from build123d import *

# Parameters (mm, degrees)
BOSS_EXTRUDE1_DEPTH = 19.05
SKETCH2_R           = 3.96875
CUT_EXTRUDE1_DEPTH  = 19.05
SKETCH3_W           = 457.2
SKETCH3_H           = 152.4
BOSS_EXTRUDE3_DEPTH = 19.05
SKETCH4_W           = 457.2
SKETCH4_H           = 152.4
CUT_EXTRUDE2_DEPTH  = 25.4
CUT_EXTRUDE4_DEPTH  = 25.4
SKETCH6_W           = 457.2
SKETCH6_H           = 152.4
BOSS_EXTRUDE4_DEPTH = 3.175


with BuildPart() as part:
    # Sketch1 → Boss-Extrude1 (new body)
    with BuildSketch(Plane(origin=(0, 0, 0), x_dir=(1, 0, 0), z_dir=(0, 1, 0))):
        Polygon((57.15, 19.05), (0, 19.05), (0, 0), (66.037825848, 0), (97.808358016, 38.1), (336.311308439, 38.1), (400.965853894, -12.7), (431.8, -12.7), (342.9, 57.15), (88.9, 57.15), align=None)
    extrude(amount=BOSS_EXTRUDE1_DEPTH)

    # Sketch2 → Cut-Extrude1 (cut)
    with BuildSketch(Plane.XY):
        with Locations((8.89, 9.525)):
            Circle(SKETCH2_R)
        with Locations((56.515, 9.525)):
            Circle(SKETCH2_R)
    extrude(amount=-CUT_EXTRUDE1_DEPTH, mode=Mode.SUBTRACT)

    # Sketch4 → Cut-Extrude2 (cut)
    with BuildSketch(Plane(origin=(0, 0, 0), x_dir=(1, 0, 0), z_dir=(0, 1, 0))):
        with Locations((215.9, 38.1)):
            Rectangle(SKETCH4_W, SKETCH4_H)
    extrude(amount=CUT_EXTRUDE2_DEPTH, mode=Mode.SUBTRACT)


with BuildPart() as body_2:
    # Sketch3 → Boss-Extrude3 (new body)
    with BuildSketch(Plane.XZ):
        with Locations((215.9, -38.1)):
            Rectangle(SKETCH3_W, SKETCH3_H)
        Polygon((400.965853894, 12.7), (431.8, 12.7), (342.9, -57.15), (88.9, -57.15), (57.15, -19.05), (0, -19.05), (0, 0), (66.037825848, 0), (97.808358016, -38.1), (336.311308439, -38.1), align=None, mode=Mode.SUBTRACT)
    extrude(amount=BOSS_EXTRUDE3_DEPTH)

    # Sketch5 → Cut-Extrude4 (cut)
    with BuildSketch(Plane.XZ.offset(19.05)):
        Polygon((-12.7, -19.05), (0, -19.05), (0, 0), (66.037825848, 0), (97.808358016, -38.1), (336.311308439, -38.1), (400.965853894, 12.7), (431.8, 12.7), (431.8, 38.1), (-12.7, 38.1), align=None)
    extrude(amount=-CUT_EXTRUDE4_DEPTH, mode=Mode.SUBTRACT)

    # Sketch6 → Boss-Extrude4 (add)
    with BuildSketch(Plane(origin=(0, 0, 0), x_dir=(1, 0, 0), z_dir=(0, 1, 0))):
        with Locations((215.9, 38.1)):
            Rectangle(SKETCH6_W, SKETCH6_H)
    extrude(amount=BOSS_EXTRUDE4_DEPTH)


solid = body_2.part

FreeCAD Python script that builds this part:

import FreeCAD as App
import Part
import Sketcher

V = App.Vector
Q = App.Units.Quantity

doc = App.newDocument("Part")
body = doc.addObject("PartDesign::Body", "Body")

# Sketch on XZ plane
sketch1 = doc.addObject("Sketcher::SketchObject", "Sketch")
body.addObject(sketch1)
sketch1.AttachmentSupport = (doc.XZ_Plane, [""])
sketch1.MapMode = "FlatFace"
sketch1.addGeometry([
    Part.LineSegment(V(57, -19, 0), V(0, -19, 0)),  # 0
    Part.LineSegment(V(0, -19, 0), V(0, 0, 0)),  # 1
    Part.LineSegment(V(0, 0, 0), V(66, 0, 0)),  # 2
    Part.LineSegment(V(66, 0, 0), V(98, -38, 0)),  # 3
    Part.LineSegment(V(98, -38, 0), V(336, -38, 0)),  # 4
    Part.LineSegment(V(336, -38, 0), V(401, 13, 0)),  # 5
    Part.LineSegment(V(401, 13, 0), V(432, 13, 0)),  # 6
    Part.LineSegment(V(432, 13, 0), V(343, -57, 0)),  # 7
    Part.LineSegment(V(343, -57, 0), V(89, -57, 0)),  # 8
    Part.LineSegment(V(89, -57, 0), V(57, -19, 0)),  # 9
], False)
sketch1.addConstraint([
    Sketcher.Constraint("Coincident", 0, 2, 1, 1),
    Sketcher.Constraint("Coincident", 1, 2, 2, 1),
    Sketcher.Constraint("Coincident", 2, 2, 3, 1),
    Sketcher.Constraint("Coincident", 3, 2, 4, 1),
    Sketcher.Constraint("Coincident", 4, 2, 5, 1),
    Sketcher.Constraint("Coincident", 5, 2, 6, 1),
    Sketcher.Constraint("Coincident", 6, 2, 7, 1),
    Sketcher.Constraint("Coincident", 7, 2, 8, 1),
    Sketcher.Constraint("Coincident", 8, 2, 9, 1),
    Sketcher.Constraint("Coincident", 9, 2, 0, 1),
    Sketcher.Constraint("Horizontal", 0),
    Sketcher.Constraint("Vertical", 1),
    Sketcher.Constraint("Horizontal", 2),
    Sketcher.Constraint("Horizontal", 4),
    Sketcher.Constraint("Horizontal", 6),
    Sketcher.Constraint("Horizontal", 8),
    Sketcher.Constraint("Coincident", 1, 2, -1, 1),
    Sketcher.Constraint("Parallel", 5, 7),
    Sketcher.Constraint("DistanceX", 8, 2, 8, 1, Q("10 in")),
    Sketcher.Constraint("DistanceX", -1, 1, 6, 2, Q("17 in")),
    Sketcher.Constraint("DistanceY", 4, 2, 5, 2, Q("2 in")),
    Sketcher.Constraint("DistanceX", 0, 2, 0, 1, Q("2.25 in")),
    Sketcher.Constraint("DistanceY", 1, 1, 1, 2, Q("0.75 in")),
    Sketcher.Constraint("DistanceY", 3, 2, -1, 1, Q("1.5 in")),
    Sketcher.Constraint("DistanceX", -1, 1, 7, 2, Q("13.5 in")),
    Sketcher.Constraint("DistanceY", 8, 2, 0, 2, Q("1.5 in")),
    Sketcher.Constraint("DistanceX", 4, 1, 4, 2, 238.50295),
    Sketcher.Constraint("DistanceX", 2, 1, 2, 2, 66.037826),
    Sketcher.Constraint("DistanceX", 6, 1, 6, 2, 30.834146),
])
pad1 = doc.addObject("PartDesign::Pad", "Pad")
body.addObject(pad1)
pad1.Profile = sketch1
pad1.Length = Q("0.75 in")
pad1.Reversed = True

# Sketch on XY plane
sketch2 = doc.addObject("Sketcher::SketchObject", "Sketch001")
body.addObject(sketch2)
sketch2.AttachmentSupport = (doc.XY_Plane, [""])
sketch2.MapMode = "FlatFace"
sketch2.addGeometry([
    Part.Circle(V(8.9, 9.5, 0), V(0, 0, 1), 4),
    Part.Circle(V(56.5, 9.5, 0), V(0, 0, 1), 4),
], False)
sketch2.addConstraint([
    Sketcher.Constraint("Equal", 0, 1),
    Sketcher.Constraint("Horizontal", 0, 3, 1, 3),
    Sketcher.Constraint("Diameter", 0, Q("0.3125 in")),
    Sketcher.Constraint("DistanceX", -1, 1, 0, 3, Q("0.35 in")),
    Sketcher.Constraint("DistanceY", -1, 1, 0, 3, Q("0.375 in")),
    Sketcher.Constraint("DistanceX", -1, 1, 1, 3, Q("2.225 in")),
])
pocket1 = doc.addObject("PartDesign::Pocket", "Pocket")
body.addObject(pocket1)
pocket1.Profile = sketch2
pocket1.Length = Q("0.75 in")

# Sketch on XZ plane
sketch3 = doc.addObject("Sketcher::SketchObject", "Sketch002")
body.addObject(sketch3)
sketch3.AttachmentSupport = (doc.XZ_Plane, [""])
sketch3.MapMode = "FlatFace"
sketch3.addGeometry([
    Part.LineSegment(V(-13, -114, 0), V(-13, 38, 0)),
    Part.LineSegment(V(-13, 38, 0), V(444, 38, 0)),
    Part.LineSegment(V(444, 38, 0), V(444, -114, 0)),
    Part.LineSegment(V(444, -114, 0), V(-13, -114, 0)),
], False)
sketch3.addConstraint([
    Sketcher.Constraint("Coincident", 0, 2, 1, 1),
    Sketcher.Constraint("Coincident", 1, 2, 2, 1),
    Sketcher.Constraint("Coincident", 2, 2, 3, 1),
    Sketcher.Constraint("Coincident", 3, 2, 0, 1),
    Sketcher.Constraint("Vertical", 0),
    Sketcher.Constraint("Horizontal", 1),
    Sketcher.Constraint("Vertical", 2),
    Sketcher.Constraint("Horizontal", 3),
    Sketcher.Constraint("DistanceX", 1, 1, 1, 2, Q("18 in")),
    Sketcher.Constraint("DistanceY", 0, 1, 0, 2, Q("6 in")),
    Sketcher.Constraint("DistanceX", 0, 2, -1, 1, Q("0.5 in")),
    Sketcher.Constraint("DistanceY", -1, 1, 0, 2, Q("1.5 in")),
])
pocket2 = doc.addObject("PartDesign::Pocket", "Pocket001")
body.addObject(pocket2)
pocket2.Profile = sketch3
pocket2.Length = Q("1 in")
body2 = doc.addObject("PartDesign::Body", "Body001")

# Sketch on XZ plane
sketch4 = doc.addObject("Sketcher::SketchObject", "Sketch003")
body2.addObject(sketch4)
sketch4.AttachmentSupport = (doc.getObject("XZ_Plane001"), [""])
sketch4.MapMode = "FlatFace"
sketch4.addGeometry([
    Part.LineSegment(V(-13, 38, 0), V(-13, -114, 0)),  # 0
    Part.LineSegment(V(-13, -114, 0), V(444, -114, 0)),  # 1
    Part.LineSegment(V(444, -114, 0), V(444, 38, 0)),  # 2
    Part.LineSegment(V(444, 38, 0), V(-13, 38, 0)),  # 3
    Part.LineSegment(V(336, -38, 0), V(401, 13, 0)),  # 4
    Part.LineSegment(V(401, 13, 0), V(432, 13, 0)),  # 5
    Part.LineSegment(V(432, 13, 0), V(343, -57, 0)),  # 6
    Part.LineSegment(V(343, -57, 0), V(89, -57, 0)),  # 7
    Part.LineSegment(V(89, -57, 0), V(57, -19, 0)),  # 8
    Part.LineSegment(V(57, -19, 0), V(0, -19, 0)),  # 9
    Part.LineSegment(V(0, -19, 0), V(0, 0, 0)),  # 10
    Part.LineSegment(V(0, 0, 0), V(66, 0, 0)),  # 11
    Part.LineSegment(V(66, 0, 0), V(98, -38, 0)),  # 12
    Part.LineSegment(V(98, -38, 0), V(336, -38, 0)),  # 13
], False)
sketch4.addConstraint([
    Sketcher.Constraint("Coincident", 0, 2, 1, 1),
    Sketcher.Constraint("Coincident", 1, 2, 2, 1),
    Sketcher.Constraint("Coincident", 2, 2, 3, 1),
    Sketcher.Constraint("Coincident", 3, 2, 0, 1),
    Sketcher.Constraint("Coincident", 4, 2, 5, 1),
    Sketcher.Constraint("Coincident", 5, 2, 6, 1),
    Sketcher.Constraint("Coincident", 6, 2, 7, 1),
    Sketcher.Constraint("Coincident", 7, 2, 8, 1),
    Sketcher.Constraint("Coincident", 8, 2, 9, 1),
    Sketcher.Constraint("Coincident", 9, 2, 10, 1),
    Sketcher.Constraint("Coincident", 10, 2, 11, 1),
    Sketcher.Constraint("Coincident", 11, 2, 12, 1),
    Sketcher.Constraint("Coincident", 12, 2, 13, 1),
    Sketcher.Constraint("Coincident", 13, 2, 4, 1),
    Sketcher.Constraint("Vertical", 0),
    Sketcher.Constraint("Horizontal", 1),
    Sketcher.Constraint("Vertical", 2),
    Sketcher.Constraint("Horizontal", 3),
    Sketcher.Constraint("Horizontal", 5),
    Sketcher.Constraint("Horizontal", 7),
    Sketcher.Constraint("Horizontal", 9),
    Sketcher.Constraint("Vertical", 10),
    Sketcher.Constraint("Horizontal", 11),
    Sketcher.Constraint("Horizontal", 13),
    Sketcher.Constraint("Coincident", 10, 2, -1, 1),
    Sketcher.Constraint("Parallel", 4, 6),
    Sketcher.Constraint("DistanceX", 1, 1, 1, 2, Q("18 in")),
    Sketcher.Constraint("DistanceX", 7, 2, 7, 1, Q("10 in")),
    Sketcher.Constraint("DistanceY", 0, 2, 0, 1, Q("6 in")),
    Sketcher.Constraint("DistanceX", -1, 1, 5, 2, Q("17 in")),
    Sketcher.Constraint("DistanceY", 4, 2, 2, 2, Q("1 in")),
    Sketcher.Constraint("DistanceX", 6, 2, 1, 2, Q("4 in")),
    Sketcher.Constraint("DistanceY", 13, 2, 4, 2, Q("2 in")),
    Sketcher.Constraint("DistanceX", 9, 2, 9, 1, Q("2.25 in")),
    Sketcher.Constraint("DistanceY", 10, 1, 10, 2, Q("0.75 in")),
    Sketcher.Constraint("DistanceX", 0, 2, -1, 1, Q("0.5 in")),
    Sketcher.Constraint("DistanceY", 0, 2, -1, 1, Q("4.5 in")),
    Sketcher.Constraint("DistanceY", 7, 2, 8, 2, Q("1.5 in")),
    Sketcher.Constraint("DistanceX", 13, 1, 13, 2, 238.50295),
    Sketcher.Constraint("DistanceX", 5, 1, 5, 2, 30.834146),
    Sketcher.Constraint("DistanceX", 11, 1, 11, 2, 66.037826),
])
pad2 = doc.addObject("PartDesign::Pad", "Pad001")
body2.addObject(pad2)
pad2.Profile = sketch4
pad2.Length = Q("0.75 in")

# Sketch on XZ plane
sketch5 = doc.addObject("Sketcher::SketchObject", "Sketch004")
body2.addObject(sketch5)
sketch5.AttachmentSupport = (doc.getObject("XZ_Plane001"), [""])
sketch5.MapMode = "FlatFace"
sketch5.AttachmentOffset = App.Placement(V(0, 0, 0.75 * 25.4), App.Rotation())
sketch5.addGeometry([
    Part.LineSegment(V(-13, -19, 0), V(0, -19, 0)),  # 0
    Part.LineSegment(V(0, -19, 0), V(0, 0, 0)),  # 1
    Part.LineSegment(V(0, 0, 0), V(66, 0, 0)),  # 2
    Part.LineSegment(V(66, 0, 0), V(98, -38, 0)),  # 3
    Part.LineSegment(V(98, -38, 0), V(336, -38, 0)),  # 4
    Part.LineSegment(V(336, -38, 0), V(401, 13, 0)),  # 5
    Part.LineSegment(V(401, 13, 0), V(432, 13, 0)),  # 6
    Part.LineSegment(V(432, 13, 0), V(432, 38, 0)),  # 7
    Part.LineSegment(V(432, 38, 0), V(-13, 38, 0)),  # 8
    Part.LineSegment(V(-13, 38, 0), V(-13, -19, 0)),  # 9
], False)
sketch5.addConstraint([
    Sketcher.Constraint("Coincident", 0, 2, 1, 1),
    Sketcher.Constraint("Coincident", 1, 2, 2, 1),
    Sketcher.Constraint("Coincident", 2, 2, 3, 1),
    Sketcher.Constraint("Coincident", 3, 2, 4, 1),
    Sketcher.Constraint("Coincident", 4, 2, 5, 1),
    Sketcher.Constraint("Coincident", 5, 2, 6, 1),
    Sketcher.Constraint("Coincident", 6, 2, 7, 1),
    Sketcher.Constraint("Coincident", 7, 2, 8, 1),
    Sketcher.Constraint("Coincident", 8, 2, 9, 1),
    Sketcher.Constraint("Coincident", 9, 2, 0, 1),
    Sketcher.Constraint("Horizontal", 0),
    Sketcher.Constraint("Vertical", 1),
    Sketcher.Constraint("Horizontal", 2),
    Sketcher.Constraint("Horizontal", 4),
    Sketcher.Constraint("Horizontal", 6),
    Sketcher.Constraint("Vertical", 7),
    Sketcher.Constraint("Horizontal", 8),
    Sketcher.Constraint("Vertical", 9),
    Sketcher.Constraint("Coincident", 1, 2, -1, 1),
    Sketcher.Constraint("DistanceY", 7, 1, 7, 2, Q("1 in")),
    Sketcher.Constraint("DistanceX", 0, 1, 0, 2, Q("0.5 in")),
    Sketcher.Constraint("DistanceX", 8, 2, 8, 1, Q("17.5 in")),
    Sketcher.Constraint("DistanceY", 4, 2, 5, 2, Q("2 in")),
    Sketcher.Constraint("DistanceY", 1, 1, 1, 2, Q("0.75 in")),
    Sketcher.Constraint("DistanceY", 9, 2, 9, 1, Q("2.25 in")),
    Sketcher.Constraint("DistanceX", 4, 1, 4, 2, 238.50295),
    Sketcher.Constraint("Distance", 5, 82.22439),
    Sketcher.Constraint("DistanceX", 2, 1, 2, 2, 66.037826),
    Sketcher.Constraint("DistanceX", 6, 1, 6, 2, 30.834146),
])
pocket3 = doc.addObject("PartDesign::Pocket", "Pocket002")
body2.addObject(pocket3)
pocket3.Profile = sketch5
pocket3.Length = Q("1 in")

# Sketch on XZ plane
sketch6 = doc.addObject("Sketcher::SketchObject", "Sketch005")
body2.addObject(sketch6)
sketch6.AttachmentSupport = (doc.getObject("XZ_Plane001"), [""])
sketch6.MapMode = "FlatFace"
sketch6.addGeometry([
    Part.LineSegment(V(-13, -114, 0), V(-13, 38, 0)),
    Part.LineSegment(V(-13, 38, 0), V(444, 38, 0)),
    Part.LineSegment(V(444, 38, 0), V(444, -114, 0)),
    Part.LineSegment(V(444, -114, 0), V(-13, -114, 0)),
], False)
sketch6.addConstraint([
    Sketcher.Constraint("Coincident", 0, 2, 1, 1),
    Sketcher.Constraint("Coincident", 1, 2, 2, 1),
    Sketcher.Constraint("Coincident", 2, 2, 3, 1),
    Sketcher.Constraint("Coincident", 3, 2, 0, 1),
    Sketcher.Constraint("Vertical", 0),
    Sketcher.Constraint("Horizontal", 1),
    Sketcher.Constraint("Vertical", 2),
    Sketcher.Constraint("Horizontal", 3),
    Sketcher.Constraint("DistanceX", 1, 1, 1, 2, Q("18 in")),
    Sketcher.Constraint("DistanceY", 0, 1, 0, 2, Q("6 in")),
    Sketcher.Constraint("DistanceX", 0, 2, -1, 1, Q("0.5 in")),
    Sketcher.Constraint("DistanceY", -1, 1, 0, 2, Q("1.5 in")),
])
pad3 = doc.addObject("PartDesign::Pad", "Pad002")
body2.addObject(pad3)
pad3.Profile = sketch6
pad3.Length = Q("0.125 in")
pad3.Reversed = True

doc.recompute()
